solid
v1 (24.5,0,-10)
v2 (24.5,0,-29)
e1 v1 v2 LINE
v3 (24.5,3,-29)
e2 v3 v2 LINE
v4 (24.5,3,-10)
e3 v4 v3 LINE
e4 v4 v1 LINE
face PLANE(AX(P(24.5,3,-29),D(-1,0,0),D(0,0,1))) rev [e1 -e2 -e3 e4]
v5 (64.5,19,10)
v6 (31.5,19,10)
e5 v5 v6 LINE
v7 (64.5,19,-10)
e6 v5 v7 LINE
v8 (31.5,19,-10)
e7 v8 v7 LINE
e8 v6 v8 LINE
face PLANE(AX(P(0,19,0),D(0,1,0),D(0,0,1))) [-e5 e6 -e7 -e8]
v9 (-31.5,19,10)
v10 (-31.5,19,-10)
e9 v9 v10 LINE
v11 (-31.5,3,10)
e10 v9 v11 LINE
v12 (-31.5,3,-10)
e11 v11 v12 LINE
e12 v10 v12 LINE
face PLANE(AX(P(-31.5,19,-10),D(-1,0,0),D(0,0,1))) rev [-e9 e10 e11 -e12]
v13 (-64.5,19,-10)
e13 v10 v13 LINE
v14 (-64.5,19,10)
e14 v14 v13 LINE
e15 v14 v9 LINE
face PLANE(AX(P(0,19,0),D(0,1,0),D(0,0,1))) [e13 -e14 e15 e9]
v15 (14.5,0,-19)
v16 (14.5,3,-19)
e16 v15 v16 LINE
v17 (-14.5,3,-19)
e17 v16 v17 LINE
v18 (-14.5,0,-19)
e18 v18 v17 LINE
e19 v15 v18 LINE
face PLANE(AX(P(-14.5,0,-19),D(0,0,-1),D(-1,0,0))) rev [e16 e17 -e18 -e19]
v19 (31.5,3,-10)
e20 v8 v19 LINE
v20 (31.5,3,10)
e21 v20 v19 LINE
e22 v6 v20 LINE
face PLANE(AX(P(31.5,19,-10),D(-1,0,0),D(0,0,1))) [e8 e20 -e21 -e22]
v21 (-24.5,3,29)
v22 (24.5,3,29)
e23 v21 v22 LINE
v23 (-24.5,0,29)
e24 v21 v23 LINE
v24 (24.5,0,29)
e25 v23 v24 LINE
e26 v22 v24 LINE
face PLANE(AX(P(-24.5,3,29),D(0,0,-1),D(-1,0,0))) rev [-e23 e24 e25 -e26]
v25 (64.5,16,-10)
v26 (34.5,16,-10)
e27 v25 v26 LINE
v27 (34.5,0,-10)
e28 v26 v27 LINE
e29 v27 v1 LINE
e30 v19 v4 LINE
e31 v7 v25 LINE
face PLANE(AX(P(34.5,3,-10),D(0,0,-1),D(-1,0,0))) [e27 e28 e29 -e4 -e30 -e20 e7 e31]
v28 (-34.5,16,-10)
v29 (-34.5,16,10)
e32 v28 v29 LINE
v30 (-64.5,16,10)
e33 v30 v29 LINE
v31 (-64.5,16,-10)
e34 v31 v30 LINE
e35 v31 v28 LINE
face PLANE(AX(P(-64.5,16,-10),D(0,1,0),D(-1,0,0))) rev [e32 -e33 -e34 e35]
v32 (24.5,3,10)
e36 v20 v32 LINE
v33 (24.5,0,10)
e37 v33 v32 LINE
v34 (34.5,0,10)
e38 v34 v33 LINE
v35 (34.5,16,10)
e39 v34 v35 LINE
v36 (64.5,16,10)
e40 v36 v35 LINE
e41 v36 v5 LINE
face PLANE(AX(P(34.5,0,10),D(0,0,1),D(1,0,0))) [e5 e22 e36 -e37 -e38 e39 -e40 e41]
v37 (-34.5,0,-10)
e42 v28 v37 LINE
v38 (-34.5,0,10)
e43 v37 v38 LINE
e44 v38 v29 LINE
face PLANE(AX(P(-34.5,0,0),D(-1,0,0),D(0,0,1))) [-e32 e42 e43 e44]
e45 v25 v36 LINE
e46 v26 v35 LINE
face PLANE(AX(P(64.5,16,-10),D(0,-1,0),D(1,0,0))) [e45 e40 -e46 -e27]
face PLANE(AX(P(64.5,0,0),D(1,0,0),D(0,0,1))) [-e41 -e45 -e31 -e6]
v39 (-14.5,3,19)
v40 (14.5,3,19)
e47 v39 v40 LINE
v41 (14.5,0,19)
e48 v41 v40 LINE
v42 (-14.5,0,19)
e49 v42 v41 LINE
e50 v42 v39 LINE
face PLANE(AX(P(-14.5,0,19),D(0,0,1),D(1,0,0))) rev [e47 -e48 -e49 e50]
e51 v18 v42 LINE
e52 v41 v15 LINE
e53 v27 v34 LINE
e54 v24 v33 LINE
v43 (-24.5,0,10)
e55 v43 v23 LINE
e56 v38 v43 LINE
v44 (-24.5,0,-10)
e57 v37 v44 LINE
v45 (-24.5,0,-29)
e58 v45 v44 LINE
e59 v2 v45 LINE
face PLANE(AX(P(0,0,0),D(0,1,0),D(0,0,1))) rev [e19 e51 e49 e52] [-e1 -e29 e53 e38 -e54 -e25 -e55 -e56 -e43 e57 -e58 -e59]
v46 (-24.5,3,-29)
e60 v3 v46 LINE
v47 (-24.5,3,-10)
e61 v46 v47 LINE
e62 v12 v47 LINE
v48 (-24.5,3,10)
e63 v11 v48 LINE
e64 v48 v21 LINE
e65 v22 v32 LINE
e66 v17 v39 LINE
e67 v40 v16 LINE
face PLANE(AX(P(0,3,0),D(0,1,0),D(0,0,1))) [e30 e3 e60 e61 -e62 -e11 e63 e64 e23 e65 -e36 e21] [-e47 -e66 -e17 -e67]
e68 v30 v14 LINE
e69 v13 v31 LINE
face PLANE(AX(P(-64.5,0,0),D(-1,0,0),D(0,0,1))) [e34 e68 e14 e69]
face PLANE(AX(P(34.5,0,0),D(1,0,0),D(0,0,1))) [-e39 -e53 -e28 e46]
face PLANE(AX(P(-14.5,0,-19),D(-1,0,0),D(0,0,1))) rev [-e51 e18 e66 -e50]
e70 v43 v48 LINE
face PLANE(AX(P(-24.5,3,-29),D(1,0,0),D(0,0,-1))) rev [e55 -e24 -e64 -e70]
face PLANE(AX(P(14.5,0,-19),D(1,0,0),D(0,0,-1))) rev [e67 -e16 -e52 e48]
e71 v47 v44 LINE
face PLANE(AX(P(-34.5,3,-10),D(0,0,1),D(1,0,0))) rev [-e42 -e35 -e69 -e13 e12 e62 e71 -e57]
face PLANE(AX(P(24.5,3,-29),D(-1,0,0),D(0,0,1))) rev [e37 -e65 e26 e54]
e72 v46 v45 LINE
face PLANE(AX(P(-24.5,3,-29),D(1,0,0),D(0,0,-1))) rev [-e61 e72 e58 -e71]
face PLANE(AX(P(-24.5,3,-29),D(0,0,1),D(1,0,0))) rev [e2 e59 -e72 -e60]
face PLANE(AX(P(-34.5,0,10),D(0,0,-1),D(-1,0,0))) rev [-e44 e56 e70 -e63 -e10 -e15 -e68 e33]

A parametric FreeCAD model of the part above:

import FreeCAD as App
import Part
import Sketcher

V = App.Vector
Q = App.Units.Quantity


def add_polygon(sketch, points):
    """Adds a closed chain of lines whose ends are joined by coincident constraints."""
    first, n = sketch.GeometryCount, len(points)
    for a, b in zip(points, points[1:] + points[:1]):
        sketch.addGeometry(Part.LineSegment(App.Vector(*a, 0), App.Vector(*b, 0)), False)
    for i in range(n):
        sketch.addConstraint(Sketcher.Constraint("Coincident", first + i, 2, first + (i + 1) % n, 1))

doc = App.newDocument("Part")
body = doc.addObject("PartDesign::Body", "Body")

# Sketch on XZ plane
sketch1 = body.newObject("Sketcher::SketchObject", "Sketch")
sketch1.AttachmentSupport = (doc.getObject("XZ_Plane"), [""])
sketch1.MapMode = "FlatFace"
add_polygon(sketch1, [(-24, -29), (-24, 29), (24, 29), (24, -29)])  # lines 0-3
sketch1.addConstraint(Sketcher.Constraint("Vertical", 0))
sketch1.addConstraint(Sketcher.Constraint("Horizontal", 1))
sketch1.addConstraint(Sketcher.Constraint("Vertical", 2))
sketch1.addConstraint(Sketcher.Constraint("Horizontal", 3))
sketch1.addConstraint(Sketcher.Constraint("Symmetric", 0, 2, 2, 2, -1, 1))
sketch1.addConstraint(Sketcher.Constraint("DistanceX", 1, 1, 1, 2, Q("49 mm")))
sketch1.addConstraint(Sketcher.Constraint("DistanceY", 0, 1, 0, 2, Q("58 mm")))
pad1 = body.newObject("PartDesign::Pad", "Pad")
pad1.Profile = sketch1
pad1.Length = 3
pad1.Reversed = True

# Sketch on XZ plane
sketch2 = body.newObject("Sketcher::SketchObject", "Sketch001")
sketch2.AttachmentSupport = (doc.getObject("XZ_Plane"), [""])
sketch2.MapMode = "FlatFace"
sketch2.AttachmentOffset = App.Placement(V(0, 0, -3), App.Rotation())
add_polygon(sketch2, [(-14, -19), (-14, 19), (14, 19), (14, -19)])  # lines 0-3
sketch2.addConstraint(Sketcher.Constraint("Vertical", 0))
sketch2.addConstraint(Sketcher.Constraint("Horizontal", 1))
sketch2.addConstraint(Sketcher.Constraint("Vertical", 2))
sketch2.addConstraint(Sketcher.Constraint("Horizontal", 3))
sketch2.addConstraint(Sketcher.Constraint("Symmetric", 0, 2, 2, 2, -1, 1))
sketch2.addConstraint(Sketcher.Constraint("DistanceX", 1, 1, 1, 2, Q("29 mm")))
sketch2.addConstraint(Sketcher.Constraint("DistanceY", 0, 1, 0, 2, Q("38 mm")))
pocket1 = body.newObject("PartDesign::Pocket", "Pocket")
pocket1.Profile = sketch2
pocket1.Length = 3
pocket1.Reversed = True

# Sketch on YZ plane
sketch3 = body.newObject("Sketcher::SketchObject", "Sketch002")
sketch3.AttachmentSupport = (doc.getObject("YZ_Plane"), [""])
sketch3.MapMode = "FlatFace"
sketch3.AttachmentOffset = App.Placement(V(0, 0, -24.5), App.Rotation())
add_polygon(sketch3, [(3, -10), (0, -10), (0, 10), (3, 10)])  # lines 0-3
sketch3.addConstraint(Sketcher.Constraint("Horizontal", 0))
sketch3.addConstraint(Sketcher.Constraint("Vertical", 1))
sketch3.addConstraint(Sketcher.Constraint("Horizontal", 2))
sketch3.addConstraint(Sketcher.Constraint("Vertical", 3))
sketch3.addConstraint(Sketcher.Constraint("Symmetric", 0, 2, 1, 2, -1, 1))
sketch3.addConstraint(Sketcher.Constraint("DistanceX", 0, 2, 0, 1, Q("3 mm")))
sketch3.addConstraint(Sketcher.Constraint("DistanceY", 1, 1, 1, 2, Q("20 mm")))
pad2 = body.newObject("PartDesign::Pad", "Pad001")
pad2.Profile = sketch3
pad2.Length = 10
pad2.Reversed = True

# Sketch on XZ plane
sketch4 = body.newObject("Sketcher::SketchObject", "Sketch003")
sketch4.AttachmentSupport = (doc.getObject("XZ_Plane"), [""])
sketch4.MapMode = "FlatFace"
sketch4.AttachmentOffset = App.Placement(V(0, 0, -3), App.Rotation())
add_polygon(sketch4, [(-34.5, -10), (-34.5, 10), (-31.5, 10), (-31.5, -10)])  # lines 0-3
sketch4.addConstraint(Sketcher.Constraint("Vertical", 0))
sketch4.addConstraint(Sketcher.Constraint("Horizontal", 1))
sketch4.addConstraint(Sketcher.Constraint("Vertical", 2))
sketch4.addConstraint(Sketcher.Constraint("Horizontal", 3))
sketch4.addConstraint(Sketcher.Constraint("DistanceX", 1, 1, 1, 2, Q("3 mm")))
sketch4.addConstraint(Sketcher.Constraint("DistanceY", 0, 1, 0, 2, Q("20 mm")))
sketch4.addConstraint(Sketcher.Constraint("DistanceY", -1, 1, 0, 2, Q("10 mm")))
sketch4.addConstraint(Sketcher.Constraint("DistanceX", 0, 2, -1, 1, Q("34.5 mm")))
pad3 = body.newObject("PartDesign::Pad", "Pad002")
pad3.Profile = sketch4
pad3.Length = 16
pad3.Reversed = True

# Sketch on YZ plane
sketch5 = body.newObject("Sketcher::SketchObject", "Sketch004")
sketch5.AttachmentSupport = (doc.getObject("YZ_Plane"), [""])
sketch5.MapMode = "FlatFace"
sketch5.AttachmentOffset = App.Placement(V(0, 0, -34.5), App.Rotation())
add_polygon(sketch5, [(19, -10), (16, -10), (16, 10), (19, 10)])  # lines 0-3
sketch5.addConstraint(Sketcher.Constraint("Horizontal", 0))
sketch5.addConstraint(Sketcher.Constraint("Vertical", 1))
sketch5.addConstraint(Sketcher.Constraint("Horizontal", 2))
sketch5.addConstraint(Sketcher.Constraint("Vertical", 3))
sketch5.addConstraint(Sketcher.Constraint("DistanceX", 0, 2, 0, 1, Q("3 mm")))
sketch5.addConstraint(Sketcher.Constraint("DistanceY", 1, 1, 1, 2, Q("20 mm")))
sketch5.addConstraint(Sketcher.Constraint("DistanceX", -1, 1, 0, 2, Q("16 mm")))
sketch5.addConstraint(Sketcher.Constraint("DistanceY", 0, 2, -1, 1, Q("10 mm")))
pad4 = body.newObject("PartDesign::Pad", "Pad003")
pad4.Profile = sketch5
pad4.Length = 30
pad4.Reversed = True
doc.recompute()

mirrored = body.newObject("PartDesign::Mirrored", "Mirrored")
mirrored.Originals = [pad2, pad3, pad4]
mirrored.MirrorPlane = (doc.getObject("YZ_Plane"), [""])
body.Tip = mirrored

doc.recompute()
